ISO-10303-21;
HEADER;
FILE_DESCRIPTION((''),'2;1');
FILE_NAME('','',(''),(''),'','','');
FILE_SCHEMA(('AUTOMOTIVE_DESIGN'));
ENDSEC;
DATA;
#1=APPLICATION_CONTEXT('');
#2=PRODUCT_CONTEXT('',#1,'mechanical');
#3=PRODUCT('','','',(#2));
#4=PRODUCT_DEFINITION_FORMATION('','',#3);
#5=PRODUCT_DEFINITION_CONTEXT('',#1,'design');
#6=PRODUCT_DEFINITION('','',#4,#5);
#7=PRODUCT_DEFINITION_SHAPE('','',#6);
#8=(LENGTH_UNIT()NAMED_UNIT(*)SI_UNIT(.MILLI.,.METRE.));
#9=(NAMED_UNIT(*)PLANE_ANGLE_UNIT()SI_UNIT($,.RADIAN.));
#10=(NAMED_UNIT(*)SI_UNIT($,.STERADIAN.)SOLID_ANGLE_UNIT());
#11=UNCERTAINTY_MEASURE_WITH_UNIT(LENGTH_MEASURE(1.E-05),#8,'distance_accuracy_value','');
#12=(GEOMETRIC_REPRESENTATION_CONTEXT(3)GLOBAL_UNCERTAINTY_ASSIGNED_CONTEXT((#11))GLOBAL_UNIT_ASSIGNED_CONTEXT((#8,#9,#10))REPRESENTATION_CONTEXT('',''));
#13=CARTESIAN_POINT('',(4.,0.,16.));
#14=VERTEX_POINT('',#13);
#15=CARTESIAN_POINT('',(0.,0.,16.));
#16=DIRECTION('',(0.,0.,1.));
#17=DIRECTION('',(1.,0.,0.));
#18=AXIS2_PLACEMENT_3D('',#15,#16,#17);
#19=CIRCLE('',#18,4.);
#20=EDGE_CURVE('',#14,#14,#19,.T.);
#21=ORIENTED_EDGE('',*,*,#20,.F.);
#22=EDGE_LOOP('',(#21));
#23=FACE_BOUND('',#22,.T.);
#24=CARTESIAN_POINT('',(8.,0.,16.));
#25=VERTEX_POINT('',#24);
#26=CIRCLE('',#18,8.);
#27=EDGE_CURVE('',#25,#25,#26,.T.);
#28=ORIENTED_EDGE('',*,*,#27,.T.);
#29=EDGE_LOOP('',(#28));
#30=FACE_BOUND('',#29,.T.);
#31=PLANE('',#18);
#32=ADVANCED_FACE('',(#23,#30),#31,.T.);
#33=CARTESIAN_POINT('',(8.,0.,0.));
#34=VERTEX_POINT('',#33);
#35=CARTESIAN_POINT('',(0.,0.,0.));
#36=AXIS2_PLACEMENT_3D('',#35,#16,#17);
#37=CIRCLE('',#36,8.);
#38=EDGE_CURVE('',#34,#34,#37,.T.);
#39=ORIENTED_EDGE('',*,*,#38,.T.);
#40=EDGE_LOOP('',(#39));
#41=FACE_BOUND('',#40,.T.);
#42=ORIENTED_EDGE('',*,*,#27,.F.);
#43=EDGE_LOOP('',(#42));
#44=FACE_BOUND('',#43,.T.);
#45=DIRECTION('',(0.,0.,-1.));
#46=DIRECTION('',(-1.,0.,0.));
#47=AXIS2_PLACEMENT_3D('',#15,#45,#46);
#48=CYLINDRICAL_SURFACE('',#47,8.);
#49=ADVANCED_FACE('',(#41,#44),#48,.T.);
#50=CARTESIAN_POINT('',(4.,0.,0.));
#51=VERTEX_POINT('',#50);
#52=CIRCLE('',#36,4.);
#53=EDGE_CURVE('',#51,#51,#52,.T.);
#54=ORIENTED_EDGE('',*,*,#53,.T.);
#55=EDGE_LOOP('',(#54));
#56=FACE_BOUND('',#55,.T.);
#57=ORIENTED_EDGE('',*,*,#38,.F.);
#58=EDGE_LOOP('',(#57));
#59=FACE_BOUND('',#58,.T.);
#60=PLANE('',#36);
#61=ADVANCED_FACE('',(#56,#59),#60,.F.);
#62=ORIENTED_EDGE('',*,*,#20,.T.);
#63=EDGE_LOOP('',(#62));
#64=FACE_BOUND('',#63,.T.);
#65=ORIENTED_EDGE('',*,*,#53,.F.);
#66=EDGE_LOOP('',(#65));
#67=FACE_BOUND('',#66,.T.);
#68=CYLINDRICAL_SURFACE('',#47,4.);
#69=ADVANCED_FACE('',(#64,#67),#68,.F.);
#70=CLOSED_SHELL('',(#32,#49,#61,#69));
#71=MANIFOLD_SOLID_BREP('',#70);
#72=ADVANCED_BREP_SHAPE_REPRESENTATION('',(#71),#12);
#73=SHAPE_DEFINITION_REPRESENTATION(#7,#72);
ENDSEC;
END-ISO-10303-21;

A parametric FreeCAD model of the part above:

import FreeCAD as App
import Part
import Sketcher

V = App.Vector
Q = App.Units.Quantity

doc = App.newDocument("Part")
body = doc.addObject("PartDesign::Body", "Body")

# Sketch on XY plane
sketch1 = body.newObject("Sketcher::SketchObject", "Sketch")
sketch1.AttachmentSupport = (doc.getObject("XY_Plane"), [""])
sketch1.MapMode = "FlatFace"
sketch1.addGeometry([
    Part.Circle(V(0, 0, 0), V(0, 0, 1), 8),
    Part.Circle(V(0, 0, 0), V(0, 0, 1), 4),
], False)
sketch1.addConstraint([
    Sketcher.Constraint("Coincident", 0, 3, -1, 1),
    Sketcher.Constraint("Coincident", 1, 3, -1, 1),
    Sketcher.Constraint("Diameter", 0, Q("16 mm")),
    Sketcher.Constraint("Diameter", 1, Q("8 mm")),
])
pad1 = body.newObject("PartDesign::Pad", "Pad")
pad1.Profile = sketch1
pad1.Length = 16

doc.recompute()
